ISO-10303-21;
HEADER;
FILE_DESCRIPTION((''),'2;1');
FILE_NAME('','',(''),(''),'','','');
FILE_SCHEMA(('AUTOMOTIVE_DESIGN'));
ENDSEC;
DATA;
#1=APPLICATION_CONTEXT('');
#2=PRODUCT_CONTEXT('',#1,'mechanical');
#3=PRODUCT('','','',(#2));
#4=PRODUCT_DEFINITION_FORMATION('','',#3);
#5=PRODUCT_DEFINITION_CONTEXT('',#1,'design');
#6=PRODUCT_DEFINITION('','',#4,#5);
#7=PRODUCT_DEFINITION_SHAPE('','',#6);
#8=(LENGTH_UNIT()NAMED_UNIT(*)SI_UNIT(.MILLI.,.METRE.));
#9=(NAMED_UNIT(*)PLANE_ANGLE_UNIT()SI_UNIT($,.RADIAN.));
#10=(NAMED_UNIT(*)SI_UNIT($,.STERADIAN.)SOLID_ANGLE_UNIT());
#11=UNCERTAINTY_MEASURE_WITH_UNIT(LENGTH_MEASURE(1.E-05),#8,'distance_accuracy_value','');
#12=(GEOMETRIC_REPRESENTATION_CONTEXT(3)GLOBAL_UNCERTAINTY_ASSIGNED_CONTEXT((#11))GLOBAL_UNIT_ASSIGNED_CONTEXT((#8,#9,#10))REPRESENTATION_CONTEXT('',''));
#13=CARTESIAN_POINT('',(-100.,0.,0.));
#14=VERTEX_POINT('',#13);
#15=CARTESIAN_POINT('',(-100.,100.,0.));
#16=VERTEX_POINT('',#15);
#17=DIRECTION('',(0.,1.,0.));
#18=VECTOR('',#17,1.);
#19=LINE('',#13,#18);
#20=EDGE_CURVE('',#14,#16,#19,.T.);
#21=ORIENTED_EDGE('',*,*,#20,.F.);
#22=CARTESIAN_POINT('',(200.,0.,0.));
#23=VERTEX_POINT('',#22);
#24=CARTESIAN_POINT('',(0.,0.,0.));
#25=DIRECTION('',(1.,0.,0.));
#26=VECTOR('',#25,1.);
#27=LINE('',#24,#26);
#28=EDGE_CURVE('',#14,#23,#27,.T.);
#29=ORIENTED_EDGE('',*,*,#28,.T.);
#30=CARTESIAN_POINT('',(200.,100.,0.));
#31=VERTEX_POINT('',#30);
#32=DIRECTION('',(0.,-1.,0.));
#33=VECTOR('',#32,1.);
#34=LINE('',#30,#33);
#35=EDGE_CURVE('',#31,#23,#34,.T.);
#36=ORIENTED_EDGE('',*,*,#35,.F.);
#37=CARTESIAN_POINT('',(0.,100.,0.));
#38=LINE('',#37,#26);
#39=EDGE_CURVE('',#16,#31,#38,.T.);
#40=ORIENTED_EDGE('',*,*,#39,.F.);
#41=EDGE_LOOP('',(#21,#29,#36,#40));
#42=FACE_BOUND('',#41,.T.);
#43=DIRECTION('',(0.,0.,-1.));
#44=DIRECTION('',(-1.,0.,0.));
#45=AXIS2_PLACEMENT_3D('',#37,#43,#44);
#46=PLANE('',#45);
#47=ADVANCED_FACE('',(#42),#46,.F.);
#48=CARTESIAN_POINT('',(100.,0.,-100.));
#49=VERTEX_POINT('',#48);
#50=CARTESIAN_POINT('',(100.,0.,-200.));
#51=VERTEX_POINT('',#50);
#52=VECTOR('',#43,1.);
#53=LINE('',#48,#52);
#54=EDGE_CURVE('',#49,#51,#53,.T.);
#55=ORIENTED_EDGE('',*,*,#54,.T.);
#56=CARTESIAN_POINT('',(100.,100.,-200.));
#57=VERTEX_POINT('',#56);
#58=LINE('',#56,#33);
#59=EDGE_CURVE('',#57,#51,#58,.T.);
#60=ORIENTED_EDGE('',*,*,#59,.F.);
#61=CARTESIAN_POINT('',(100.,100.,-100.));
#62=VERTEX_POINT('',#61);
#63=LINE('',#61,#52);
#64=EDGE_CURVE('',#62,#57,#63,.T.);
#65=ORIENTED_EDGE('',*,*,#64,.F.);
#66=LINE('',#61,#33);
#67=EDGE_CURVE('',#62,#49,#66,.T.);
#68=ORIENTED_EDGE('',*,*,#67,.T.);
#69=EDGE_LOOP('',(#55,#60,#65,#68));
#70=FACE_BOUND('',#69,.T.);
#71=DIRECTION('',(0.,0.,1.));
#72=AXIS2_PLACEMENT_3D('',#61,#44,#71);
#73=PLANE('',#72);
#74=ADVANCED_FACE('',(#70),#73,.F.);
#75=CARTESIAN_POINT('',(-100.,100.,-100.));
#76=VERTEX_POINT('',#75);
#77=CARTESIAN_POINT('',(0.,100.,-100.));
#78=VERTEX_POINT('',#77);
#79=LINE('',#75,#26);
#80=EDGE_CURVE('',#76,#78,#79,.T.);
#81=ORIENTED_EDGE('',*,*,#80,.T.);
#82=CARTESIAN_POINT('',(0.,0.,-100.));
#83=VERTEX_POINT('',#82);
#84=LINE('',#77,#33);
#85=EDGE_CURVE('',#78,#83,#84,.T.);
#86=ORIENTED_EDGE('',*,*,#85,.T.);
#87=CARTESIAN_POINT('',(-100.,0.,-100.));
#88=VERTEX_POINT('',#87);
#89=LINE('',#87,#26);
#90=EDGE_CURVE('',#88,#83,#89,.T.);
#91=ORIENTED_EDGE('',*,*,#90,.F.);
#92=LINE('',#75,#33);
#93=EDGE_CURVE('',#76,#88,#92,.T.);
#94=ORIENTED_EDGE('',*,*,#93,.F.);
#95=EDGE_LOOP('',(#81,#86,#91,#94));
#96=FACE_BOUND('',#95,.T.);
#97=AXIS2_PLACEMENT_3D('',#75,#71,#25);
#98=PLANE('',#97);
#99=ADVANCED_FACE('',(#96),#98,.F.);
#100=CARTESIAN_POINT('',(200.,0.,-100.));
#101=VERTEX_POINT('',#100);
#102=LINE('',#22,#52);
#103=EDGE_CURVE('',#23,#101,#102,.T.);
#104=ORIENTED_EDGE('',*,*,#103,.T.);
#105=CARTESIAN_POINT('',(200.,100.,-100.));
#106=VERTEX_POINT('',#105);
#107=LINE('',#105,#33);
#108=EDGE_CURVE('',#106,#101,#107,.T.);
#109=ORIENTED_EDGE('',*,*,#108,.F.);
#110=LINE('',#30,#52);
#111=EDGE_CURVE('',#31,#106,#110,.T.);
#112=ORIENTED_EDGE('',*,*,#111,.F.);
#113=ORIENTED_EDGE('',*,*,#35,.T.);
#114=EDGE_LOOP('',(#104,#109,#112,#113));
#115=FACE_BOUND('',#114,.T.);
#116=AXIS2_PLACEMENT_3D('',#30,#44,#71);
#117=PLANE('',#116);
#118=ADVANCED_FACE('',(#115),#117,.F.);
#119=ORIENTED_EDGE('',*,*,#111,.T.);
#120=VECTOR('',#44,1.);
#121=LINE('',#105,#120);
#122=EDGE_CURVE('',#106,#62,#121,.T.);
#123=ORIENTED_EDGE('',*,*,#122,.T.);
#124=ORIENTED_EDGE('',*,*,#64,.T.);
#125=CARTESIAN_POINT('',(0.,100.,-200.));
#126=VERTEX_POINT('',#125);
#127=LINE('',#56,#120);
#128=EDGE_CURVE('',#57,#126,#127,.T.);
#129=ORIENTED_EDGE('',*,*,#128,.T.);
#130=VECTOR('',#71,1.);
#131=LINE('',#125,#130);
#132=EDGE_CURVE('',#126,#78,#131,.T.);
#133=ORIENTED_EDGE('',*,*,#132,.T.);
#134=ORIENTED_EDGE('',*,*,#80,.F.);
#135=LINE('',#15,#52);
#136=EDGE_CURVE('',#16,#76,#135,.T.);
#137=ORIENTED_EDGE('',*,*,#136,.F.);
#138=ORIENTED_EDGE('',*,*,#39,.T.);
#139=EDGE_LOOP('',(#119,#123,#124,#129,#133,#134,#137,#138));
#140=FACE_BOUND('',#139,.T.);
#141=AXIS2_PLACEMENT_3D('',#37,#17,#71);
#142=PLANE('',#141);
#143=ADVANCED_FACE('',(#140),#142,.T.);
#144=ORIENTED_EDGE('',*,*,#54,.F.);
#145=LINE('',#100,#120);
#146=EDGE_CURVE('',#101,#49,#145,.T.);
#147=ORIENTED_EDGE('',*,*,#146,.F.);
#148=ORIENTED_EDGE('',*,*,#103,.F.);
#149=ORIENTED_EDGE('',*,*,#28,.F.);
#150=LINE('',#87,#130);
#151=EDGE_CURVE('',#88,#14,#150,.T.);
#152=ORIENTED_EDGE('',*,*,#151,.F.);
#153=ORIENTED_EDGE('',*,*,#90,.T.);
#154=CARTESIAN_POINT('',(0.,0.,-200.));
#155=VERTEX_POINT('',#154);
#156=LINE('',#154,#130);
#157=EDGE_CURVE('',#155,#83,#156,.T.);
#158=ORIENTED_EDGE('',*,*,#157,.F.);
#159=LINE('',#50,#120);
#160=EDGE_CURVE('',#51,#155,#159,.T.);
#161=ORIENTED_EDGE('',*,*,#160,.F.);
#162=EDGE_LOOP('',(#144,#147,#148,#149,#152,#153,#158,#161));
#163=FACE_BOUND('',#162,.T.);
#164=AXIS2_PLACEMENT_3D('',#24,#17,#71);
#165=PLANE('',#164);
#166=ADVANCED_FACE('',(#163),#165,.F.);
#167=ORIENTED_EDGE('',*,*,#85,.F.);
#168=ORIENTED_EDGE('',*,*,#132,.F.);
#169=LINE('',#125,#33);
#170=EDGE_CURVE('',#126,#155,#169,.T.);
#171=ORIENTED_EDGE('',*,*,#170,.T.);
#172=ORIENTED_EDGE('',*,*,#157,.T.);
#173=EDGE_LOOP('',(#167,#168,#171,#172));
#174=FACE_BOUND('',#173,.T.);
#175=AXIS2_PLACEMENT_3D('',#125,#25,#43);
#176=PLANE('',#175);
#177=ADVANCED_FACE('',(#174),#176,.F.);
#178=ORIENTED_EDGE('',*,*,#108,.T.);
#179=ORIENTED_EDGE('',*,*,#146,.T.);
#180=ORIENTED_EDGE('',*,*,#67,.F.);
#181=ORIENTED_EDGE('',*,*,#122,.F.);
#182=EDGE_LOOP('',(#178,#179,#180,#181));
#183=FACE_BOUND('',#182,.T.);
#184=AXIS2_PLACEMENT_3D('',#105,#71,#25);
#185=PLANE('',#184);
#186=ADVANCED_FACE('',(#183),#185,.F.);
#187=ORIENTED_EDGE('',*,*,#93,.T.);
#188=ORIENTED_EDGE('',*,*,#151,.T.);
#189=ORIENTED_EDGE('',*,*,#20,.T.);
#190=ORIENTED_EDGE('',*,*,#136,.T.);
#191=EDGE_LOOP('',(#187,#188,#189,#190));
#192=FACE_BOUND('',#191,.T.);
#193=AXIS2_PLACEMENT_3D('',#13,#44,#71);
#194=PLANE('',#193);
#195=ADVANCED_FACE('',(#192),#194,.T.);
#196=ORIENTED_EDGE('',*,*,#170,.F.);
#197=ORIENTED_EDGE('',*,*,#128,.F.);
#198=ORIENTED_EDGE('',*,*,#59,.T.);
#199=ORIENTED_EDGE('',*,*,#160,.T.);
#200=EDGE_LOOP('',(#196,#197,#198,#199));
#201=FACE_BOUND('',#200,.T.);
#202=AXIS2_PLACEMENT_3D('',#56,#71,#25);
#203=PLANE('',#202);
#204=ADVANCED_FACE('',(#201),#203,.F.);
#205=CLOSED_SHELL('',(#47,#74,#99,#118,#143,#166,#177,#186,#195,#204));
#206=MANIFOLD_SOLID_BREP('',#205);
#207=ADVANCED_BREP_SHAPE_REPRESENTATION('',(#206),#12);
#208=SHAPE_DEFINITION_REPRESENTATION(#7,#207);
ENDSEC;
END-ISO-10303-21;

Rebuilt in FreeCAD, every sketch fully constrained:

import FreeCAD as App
import Part
import Sketcher
Q = App.Units.Quantity

doc = App.newDocument("Part")
body = doc.addObject("PartDesign::Body", "Body")

# Sketch on XZ plane
sketch1 = doc.addObject("Sketcher::SketchObject", "Sketch")
body.addObject(sketch1)
sketch1.AttachmentSupport = (doc.XZ_Plane, [""])
sketch1.MapMode = "FlatFace"
sketch1.addGeometry([
    Part.LineSegment(App.Vector(0, 0, 0), App.Vector(200, 0, 0)),  # 0
    Part.LineSegment(App.Vector(200, 0, 0), App.Vector(200, -100, 0)),  # 1
    Part.LineSegment(App.Vector(200, -100, 0), App.Vector(100, -100, 0)),  # 2
    Part.LineSegment(App.Vector(100, -100, 0), App.Vector(100, -200, 0)),  # 3
    Part.LineSegment(App.Vector(100, -200, 0), App.Vector(0, -200, 0)),  # 4
    Part.LineSegment(App.Vector(0, -200, 0), App.Vector(0, 0, 0)),  # 5
], False)
sketch1.addConstraint([
    Sketcher.Constraint("Coincident", 0, 2, 1, 1),
    Sketcher.Constraint("Coincident", 1, 2, 2, 1),
    Sketcher.Constraint("Coincident", 2, 2, 3, 1),
    Sketcher.Constraint("Coincident", 3, 2, 4, 1),
    Sketcher.Constraint("Coincident", 4, 2, 5, 1),
    Sketcher.Constraint("Coincident", 5, 2, 0, 1),
    Sketcher.Constraint("Horizontal", 0),
    Sketcher.Constraint("Vertical", 1),
    Sketcher.Constraint("Horizontal", 2),
    Sketcher.Constraint("Vertical", 3),
    Sketcher.Constraint("Horizontal", 4),
    Sketcher.Constraint("Vertical", 5),
    Sketcher.Constraint("Coincident", 5, 2, -1, 1),
    Sketcher.Constraint("Equal", 2, 4),
    Sketcher.Constraint("Equal", 4, 1),
    Sketcher.Constraint("Equal", 1, 3),
    Sketcher.Constraint("DistanceX", 0, 1, 0, 2, Q("200 mm")),
])
pad1 = doc.addObject("PartDesign::Pad", "Pad")
body.addObject(pad1)
pad1.Profile = sketch1
pad1.Length = 100
pad1.Reversed = True

# Sketch on YZ plane
sketch2 = doc.addObject("Sketcher::SketchObject", "Sketch001")
body.addObject(sketch2)
sketch2.AttachmentSupport = (doc.YZ_Plane, [""])
sketch2.MapMode = "FlatFace"
sketch2.addGeometry([
    Part.LineSegment(App.Vector(100, -100, 0), App.Vector(0, -100, 0)),
    Part.LineSegment(App.Vector(0, -100, 0), App.Vector(0, 0, 0)),
    Part.LineSegment(App.Vector(0, 0, 0), App.Vector(100, 0, 0)),
    Part.LineSegment(App.Vector(100, 0, 0), App.Vector(100, -100, 0)),
], False)
sketch2.addConstraint([
    Sketcher.Constraint("Coincident", 0, 2, 1, 1),
    Sketcher.Constraint("Coincident", 1, 2, 2, 1),
    Sketcher.Constraint("Coincident", 2, 2, 3, 1),
    Sketcher.Constraint("Coincident", 3, 2, 0, 1),
    Sketcher.Constraint("Horizontal", 0),
    Sketcher.Constraint("Vertical", 1),
    Sketcher.Constraint("Horizontal", 2),
    Sketcher.Constraint("Vertical", 3),
    Sketcher.Constraint("Coincident", 1, 2, -1, 1),
    Sketcher.Constraint("Equal", 2, 1),
    Sketcher.Constraint("DistanceX", 0, 2, 0, 1, Q("100 mm")),
])
pad2 = doc.addObject("PartDesign::Pad", "Pad001")
body.addObject(pad2)
pad2.Profile = sketch2
pad2.Length = 100
pad2.Reversed = True

doc.recompute()
